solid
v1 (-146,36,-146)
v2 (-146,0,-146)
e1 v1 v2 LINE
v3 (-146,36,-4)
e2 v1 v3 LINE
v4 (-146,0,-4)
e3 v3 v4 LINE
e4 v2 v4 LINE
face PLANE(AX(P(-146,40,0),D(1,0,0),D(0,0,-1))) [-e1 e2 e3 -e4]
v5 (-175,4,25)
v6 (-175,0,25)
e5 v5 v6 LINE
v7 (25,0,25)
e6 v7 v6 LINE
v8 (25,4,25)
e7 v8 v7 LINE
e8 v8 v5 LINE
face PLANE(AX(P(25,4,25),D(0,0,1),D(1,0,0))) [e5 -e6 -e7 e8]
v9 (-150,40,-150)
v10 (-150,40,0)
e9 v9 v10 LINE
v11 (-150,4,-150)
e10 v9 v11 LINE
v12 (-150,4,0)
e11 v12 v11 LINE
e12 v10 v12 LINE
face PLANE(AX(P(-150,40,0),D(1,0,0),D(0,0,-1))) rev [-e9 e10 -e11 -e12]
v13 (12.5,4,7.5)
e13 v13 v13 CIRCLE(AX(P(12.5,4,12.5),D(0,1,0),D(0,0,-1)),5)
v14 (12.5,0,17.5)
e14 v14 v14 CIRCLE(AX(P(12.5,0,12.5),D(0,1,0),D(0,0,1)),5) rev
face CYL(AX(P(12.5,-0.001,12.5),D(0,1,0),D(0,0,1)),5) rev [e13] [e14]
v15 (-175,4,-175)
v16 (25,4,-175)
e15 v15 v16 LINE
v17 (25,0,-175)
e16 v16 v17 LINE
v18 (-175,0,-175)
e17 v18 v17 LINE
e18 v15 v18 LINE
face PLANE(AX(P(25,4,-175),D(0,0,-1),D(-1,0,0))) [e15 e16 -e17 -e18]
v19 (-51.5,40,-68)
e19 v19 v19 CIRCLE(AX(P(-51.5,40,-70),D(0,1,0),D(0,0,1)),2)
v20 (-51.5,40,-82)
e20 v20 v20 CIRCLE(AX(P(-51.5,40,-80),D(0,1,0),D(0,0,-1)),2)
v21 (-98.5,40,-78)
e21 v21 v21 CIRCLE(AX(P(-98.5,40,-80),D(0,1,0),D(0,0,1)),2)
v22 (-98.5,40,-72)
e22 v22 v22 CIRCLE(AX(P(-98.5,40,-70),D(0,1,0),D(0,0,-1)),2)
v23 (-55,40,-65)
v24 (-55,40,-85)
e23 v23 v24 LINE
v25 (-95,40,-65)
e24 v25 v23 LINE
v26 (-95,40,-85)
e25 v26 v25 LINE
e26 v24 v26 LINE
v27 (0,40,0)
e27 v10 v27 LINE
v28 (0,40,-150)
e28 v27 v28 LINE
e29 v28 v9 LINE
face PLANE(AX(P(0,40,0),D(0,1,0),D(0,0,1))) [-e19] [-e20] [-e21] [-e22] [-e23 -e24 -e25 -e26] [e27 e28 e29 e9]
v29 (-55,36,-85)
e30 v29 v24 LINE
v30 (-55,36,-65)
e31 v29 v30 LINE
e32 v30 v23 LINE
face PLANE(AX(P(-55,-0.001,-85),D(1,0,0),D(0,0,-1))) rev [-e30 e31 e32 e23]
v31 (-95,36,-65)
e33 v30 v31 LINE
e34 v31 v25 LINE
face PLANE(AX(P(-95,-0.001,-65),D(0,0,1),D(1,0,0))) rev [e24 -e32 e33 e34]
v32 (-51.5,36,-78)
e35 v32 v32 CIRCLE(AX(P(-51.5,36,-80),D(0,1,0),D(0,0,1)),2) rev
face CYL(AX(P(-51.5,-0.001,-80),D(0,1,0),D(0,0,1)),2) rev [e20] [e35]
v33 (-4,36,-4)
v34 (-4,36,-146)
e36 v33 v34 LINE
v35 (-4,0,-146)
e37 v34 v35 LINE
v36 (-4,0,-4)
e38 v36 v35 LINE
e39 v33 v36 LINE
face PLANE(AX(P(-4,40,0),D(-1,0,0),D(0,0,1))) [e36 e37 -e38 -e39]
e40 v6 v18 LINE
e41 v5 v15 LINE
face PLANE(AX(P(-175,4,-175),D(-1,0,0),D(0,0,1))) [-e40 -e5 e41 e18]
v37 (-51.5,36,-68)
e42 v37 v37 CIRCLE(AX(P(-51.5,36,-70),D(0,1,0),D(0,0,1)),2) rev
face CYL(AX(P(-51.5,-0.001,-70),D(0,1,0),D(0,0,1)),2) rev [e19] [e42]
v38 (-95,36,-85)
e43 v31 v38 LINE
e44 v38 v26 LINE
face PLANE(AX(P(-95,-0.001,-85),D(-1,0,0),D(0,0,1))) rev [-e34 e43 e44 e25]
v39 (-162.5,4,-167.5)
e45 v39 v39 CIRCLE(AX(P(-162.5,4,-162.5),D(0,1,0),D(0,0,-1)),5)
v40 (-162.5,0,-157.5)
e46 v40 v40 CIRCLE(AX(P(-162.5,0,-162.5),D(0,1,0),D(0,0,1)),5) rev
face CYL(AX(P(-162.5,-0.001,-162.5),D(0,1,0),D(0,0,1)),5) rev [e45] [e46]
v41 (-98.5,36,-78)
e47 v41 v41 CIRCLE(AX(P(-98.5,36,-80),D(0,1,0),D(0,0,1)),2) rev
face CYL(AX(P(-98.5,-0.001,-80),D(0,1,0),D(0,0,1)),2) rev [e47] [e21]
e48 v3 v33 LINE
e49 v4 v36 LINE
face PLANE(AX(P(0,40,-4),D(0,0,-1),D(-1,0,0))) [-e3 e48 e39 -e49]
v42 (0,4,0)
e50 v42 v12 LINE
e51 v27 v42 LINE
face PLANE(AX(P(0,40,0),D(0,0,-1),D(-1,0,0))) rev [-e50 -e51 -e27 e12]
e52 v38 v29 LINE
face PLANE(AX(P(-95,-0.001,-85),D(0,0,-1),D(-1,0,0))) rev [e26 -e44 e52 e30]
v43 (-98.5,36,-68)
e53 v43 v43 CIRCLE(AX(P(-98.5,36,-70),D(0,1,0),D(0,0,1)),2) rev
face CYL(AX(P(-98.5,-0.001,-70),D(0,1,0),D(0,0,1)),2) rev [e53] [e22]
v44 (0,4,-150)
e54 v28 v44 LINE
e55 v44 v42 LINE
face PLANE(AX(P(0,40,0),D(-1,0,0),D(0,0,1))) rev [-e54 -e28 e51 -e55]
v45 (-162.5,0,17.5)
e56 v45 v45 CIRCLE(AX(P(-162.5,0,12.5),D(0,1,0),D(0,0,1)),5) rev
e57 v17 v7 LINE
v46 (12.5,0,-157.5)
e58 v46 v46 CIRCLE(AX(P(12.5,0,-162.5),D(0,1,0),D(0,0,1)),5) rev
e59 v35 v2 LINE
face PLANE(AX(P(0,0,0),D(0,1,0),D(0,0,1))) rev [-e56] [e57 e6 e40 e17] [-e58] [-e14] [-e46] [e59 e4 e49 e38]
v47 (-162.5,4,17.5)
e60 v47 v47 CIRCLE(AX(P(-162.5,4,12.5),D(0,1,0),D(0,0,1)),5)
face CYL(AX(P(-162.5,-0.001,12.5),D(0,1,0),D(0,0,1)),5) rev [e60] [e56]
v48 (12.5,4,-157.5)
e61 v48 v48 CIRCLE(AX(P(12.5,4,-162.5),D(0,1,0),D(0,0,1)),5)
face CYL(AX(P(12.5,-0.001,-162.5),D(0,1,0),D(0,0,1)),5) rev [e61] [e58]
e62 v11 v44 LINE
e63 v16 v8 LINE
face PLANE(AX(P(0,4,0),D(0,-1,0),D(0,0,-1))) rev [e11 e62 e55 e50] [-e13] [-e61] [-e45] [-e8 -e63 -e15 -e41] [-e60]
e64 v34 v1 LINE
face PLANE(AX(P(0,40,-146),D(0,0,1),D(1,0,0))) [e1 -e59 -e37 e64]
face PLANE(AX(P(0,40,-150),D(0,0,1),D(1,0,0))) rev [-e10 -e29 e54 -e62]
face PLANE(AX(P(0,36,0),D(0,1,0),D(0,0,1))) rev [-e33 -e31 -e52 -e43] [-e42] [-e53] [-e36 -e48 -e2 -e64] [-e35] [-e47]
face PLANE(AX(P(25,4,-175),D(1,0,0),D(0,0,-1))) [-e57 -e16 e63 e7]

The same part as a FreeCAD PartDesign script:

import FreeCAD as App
import Part
import Sketcher
Q = App.Units.Quantity


def faces_at(feature, points):
    """Names of the faces that lie closest to the given points."""
    faces = feature.Shape.Faces
    near = lambda p: min(range(len(faces)), key=lambda i: faces[i].distToShape(Part.Vertex(*p))[0])
    return sorted({f"Face{near(p) + 1}" for p in points})


def add_polygon(sketch, points):
    """Adds a closed chain of lines whose ends are joined by coincident constraints."""
    first, n = sketch.GeometryCount, len(points)
    for a, b in zip(points, points[1:] + points[:1]):
        sketch.addGeometry(Part.LineSegment(App.Vector(*a, 0), App.Vector(*b, 0)), False)
    for i in range(n):
        sketch.addConstraint(Sketcher.Constraint("Coincident", first + i, 2, first + (i + 1) % n, 1))

doc = App.newDocument("Part")
body = doc.addObject("PartDesign::Body", "Body")

# Sketch on XZ plane
sketch1 = body.newObject("Sketcher::SketchObject", "Sketch")
sketch1.AttachmentSupport = (doc.getObject("XZ_Plane"), [""])
sketch1.MapMode = "FlatFace"
add_polygon(sketch1, [(-150, -150), (-150, 0), (0, 0), (0, -150)])  # lines 0-3
sketch1.addConstraint(Sketcher.Constraint("Vertical", 0))
sketch1.addConstraint(Sketcher.Constraint("Horizontal", 1))
sketch1.addConstraint(Sketcher.Constraint("Vertical", 2))
sketch1.addConstraint(Sketcher.Constraint("Horizontal", 3))
sketch1.addConstraint(Sketcher.Constraint("Coincident", 1, 2, -1, 1))
sketch1.addConstraint(Sketcher.Constraint("Equal", 3, 0))
sketch1.addConstraint(Sketcher.Constraint("DistanceX", 1, 1, 1, 2, Q("150 mm")))
pad1 = body.newObject("PartDesign::Pad", "Pad")
pad1.Profile = sketch1
pad1.Length = 40
pad1.Reversed = True
doc.recompute()

thickness = body.newObject("PartDesign::Thickness", "Thickness")
thickness.Base = (pad1, faces_at(pad1, [(-75, 0, -75)]))
thickness.Value = 4
thickness.Reversed = True
thickness.Join = "Intersection"

# Sketch on XZ plane
sketch2 = body.newObject("Sketcher::SketchObject", "Sketch001")
sketch2.AttachmentSupport = (doc.getObject("XZ_Plane"), [""])
sketch2.MapMode = "FlatFace"
add_polygon(sketch2, [(-175, 25), (-175, -175), (25, -175), (25, 25)])  # lines 0-3
add_polygon(sketch2, [(0, -150), (-150, -150), (-150, 0), (0, 0)])  # lines 4-7
sketch2.addConstraint(Sketcher.Constraint("Vertical", 0))
sketch2.addConstraint(Sketcher.Constraint("Horizontal", 1))
sketch2.addConstraint(Sketcher.Constraint("Vertical", 2))
sketch2.addConstraint(Sketcher.Constraint("Horizontal", 3))
sketch2.addConstraint(Sketcher.Constraint("Horizontal", 4))
sketch2.addConstraint(Sketcher.Constraint("Vertical", 5))
sketch2.addConstraint(Sketcher.Constraint("Horizontal", 6))
sketch2.addConstraint(Sketcher.Constraint("Vertical", 7))
sketch2.addConstraint(Sketcher.Constraint("Coincident", 6, 2, -1, 1))
sketch2.addConstraint(Sketcher.Constraint("Equal", 3, 0))
sketch2.addConstraint(Sketcher.Constraint("Equal", 6, 5))
sketch2.addConstraint(Sketcher.Constraint("DistanceX", 1, 1, 1, 2, Q("200 mm")))
sketch2.addConstraint(Sketcher.Constraint("DistanceX", 4, 2, 4, 1, Q("150 mm")))
sketch2.addConstraint(Sketcher.Constraint("DistanceX", 0, 2, -1, 1, Q("175 mm")))
sketch2.addConstraint(Sketcher.Constraint("DistanceY", 0, 2, -1, 1, Q("175 mm")))
pad2 = body.newObject("PartDesign::Pad", "Pad001")
pad2.Profile = sketch2
pad2.Length = 4
pad2.Reversed = True

# Sketch on XZ plane
sketch3 = body.newObject("Sketcher::SketchObject", "Sketch002")
sketch3.AttachmentSupport = (doc.getObject("XZ_Plane"), [""])
sketch3.MapMode = "FlatFace"
sketch3.AttachmentOffset = App.Placement(App.Vector(0, 0, -4), App.Rotation())
sketch3.addGeometry(Part.Circle(App.Vector(12, -162, 0), App.Vector(0, 0, 1), 5), False)
sketch3.addConstraint(Sketcher.Constraint("Diameter", 0, Q("10 mm")))
sketch3.addConstraint(Sketcher.Constraint("DistanceX", -1, 1, 0, 3, Q("12.5 mm")))
sketch3.addConstraint(Sketcher.Constraint("DistanceY", 0, 3, -1, 1, Q("162.5 mm")))
pocket1 = body.newObject("PartDesign::Pocket", "Pocket")
pocket1.Profile = sketch3
pocket1.Type = "UpToFirst"
pocket1.Reversed = True

# Sketch on XZ plane
sketch4 = body.newObject("Sketcher::SketchObject", "Sketch003")
sketch4.AttachmentSupport = (doc.getObject("XZ_Plane"), [""])
sketch4.MapMode = "FlatFace"
sketch4.AttachmentOffset = App.Placement(App.Vector(0, 0, -4), App.Rotation())
sketch4.addGeometry(Part.Circle(App.Vector(12, 12, 0), App.Vector(0, 0, 1), 5), False)
sketch4.addConstraint(Sketcher.Constraint("Diameter", 0, Q("10 mm")))
sketch4.addConstraint(Sketcher.Constraint("DistanceX", -1, 1, 0, 3, Q("12.5 mm")))
sketch4.addConstraint(Sketcher.Constraint("DistanceY", -1, 1, 0, 3, Q("12.5 mm")))
pocket2 = body.newObject("PartDesign::Pocket", "Pocket001")
pocket2.Profile = sketch4
pocket2.Type = "UpToFirst"
pocket2.Reversed = True

# Sketch on XZ plane
sketch5 = body.newObject("Sketcher::SketchObject", "Sketch004")
sketch5.AttachmentSupport = (doc.getObject("XZ_Plane"), [""])
sketch5.MapMode = "FlatFace"
sketch5.AttachmentOffset = App.Placement(App.Vector(0, 0, -4), App.Rotation())
sketch5.addGeometry(Part.Circle(App.Vector(-162, 12, 0), App.Vector(0, 0, 1), 5), False)
sketch5.addConstraint(Sketcher.Constraint("Diameter", 0, Q("10 mm")))
sketch5.addConstraint(Sketcher.Constraint("DistanceX", 0, 3, -1, 1, Q("162.5 mm")))
sketch5.addConstraint(Sketcher.Constraint("DistanceY", -1, 1, 0, 3, Q("12.5 mm")))
pocket3 = body.newObject("PartDesign::Pocket", "Pocket002")
pocket3.Profile = sketch5
pocket3.Type = "UpToFirst"
pocket3.Reversed = True

# Sketch on XZ plane
sketch6 = body.newObject("Sketcher::SketchObject", "Sketch005")
sketch6.AttachmentSupport = (doc.getObject("XZ_Plane"), [""])
sketch6.MapMode = "FlatFace"
sketch6.AttachmentOffset = App.Placement(App.Vector(0, 0, -4), App.Rotation())
sketch6.addGeometry(Part.Circle(App.Vector(-162, -162, 0), App.Vector(0, 0, 1), 5), False)
sketch6.addConstraint(Sketcher.Constraint("Diameter", 0, Q("10 mm")))
sketch6.addConstraint(Sketcher.Constraint("DistanceX", 0, 3, -1, 1, Q("162.5 mm")))
sketch6.addConstraint(Sketcher.Constraint("DistanceY", 0, 3, -1, 1, Q("162.5 mm")))
pocket4 = body.newObject("PartDesign::Pocket", "Pocket003")
pocket4.Profile = sketch6
pocket4.Type = "UpToFirst"
pocket4.Reversed = True

# Sketch on XZ plane
sketch7 = body.newObject("Sketcher::SketchObject", "Sketch006")
sketch7.AttachmentSupport = (doc.getObject("XZ_Plane"), [""])
sketch7.MapMode = "FlatFace"
sketch7.AttachmentOffset = App.Placement(App.Vector(0, 0, -40), App.Rotation())
sketch7.addGeometry(Part.Circle(App.Vector(-51.5, -70, 0), App.Vector(0, 0, 1), 2), False)
sketch7.addConstraint(Sketcher.Constraint("Diameter", 0, Q("4 mm")))
sketch7.addConstraint(Sketcher.Constraint("DistanceY", 0, 3, -1, 1, Q("70 mm")))
sketch7.addConstraint(Sketcher.Constraint("DistanceX", 0, 3, -1, 1, Q("51.5 mm")))
pocket5 = body.newObject("PartDesign::Pocket", "Pocket004")
pocket5.Profile = sketch7
pocket5.Type = "UpToFirst"
pocket5.Reversed = True

# Sketch on XZ plane
sketch8 = body.newObject("Sketcher::SketchObject", "Sketch007")
sketch8.AttachmentSupport = (doc.getObject("XZ_Plane"), [""])
sketch8.MapMode = "FlatFace"
sketch8.AttachmentOffset = App.Placement(App.Vector(0, 0, -40), App.Rotation())
sketch8.addGeometry(Part.Circle(App.Vector(-51.5, -80, 0), App.Vector(0, 0, 1), 2), False)
sketch8.addConstraint(Sketcher.Constraint("Diameter", 0, Q("4 mm")))
sketch8.addConstraint(Sketcher.Constraint("DistanceY", 0, 3, -1, 1, Q("80 mm")))
sketch8.addConstraint(Sketcher.Constraint("DistanceX", 0, 3, -1, 1, Q("51.5 mm")))
pocket6 = body.newObject("PartDesign::Pocket", "Pocket005")
pocket6.Profile = sketch8
pocket6.Type = "UpToFirst"
pocket6.Reversed = True

# Sketch on XZ plane
sketch9 = body.newObject("Sketcher::SketchObject", "Sketch008")
sketch9.AttachmentSupport = (doc.getObject("XZ_Plane"), [""])
sketch9.MapMode = "FlatFace"
sketch9.AttachmentOffset = App.Placement(App.Vector(0, 0, -40), App.Rotation())
sketch9.addGeometry(Part.Circle(App.Vector(-98.5, -80, 0), App.Vector(0, 0, 1), 2), False)
sketch9.addConstraint(Sketcher.Constraint("Diameter", 0, Q("4 mm")))
sketch9.addConstraint(Sketcher.Constraint("DistanceY", 0, 3, -1, 1, Q("80 mm")))
sketch9.addConstraint(Sketcher.Constraint("DistanceX", 0, 3, -1, 1, Q("98.5 mm")))
pocket7 = body.newObject("PartDesign::Pocket", "Pocket006")
pocket7.Profile = sketch9
pocket7.Type = "UpToFirst"
pocket7.Reversed = True

# Sketch on XZ plane
sketch10 = body.newObject("Sketcher::SketchObject", "Sketch009")
sketch10.AttachmentSupport = (doc.getObject("XZ_Plane"), [""])
sketch10.MapMode = "FlatFace"
sketch10.AttachmentOffset = App.Placement(App.Vector(0, 0, -40), App.Rotation())
sketch10.addGeometry(Part.Circle(App.Vector(-98.5, -70, 0), App.Vector(0, 0, 1), 2), False)
sketch10.addConstraint(Sketcher.Constraint("Diameter", 0, Q("4 mm")))
sketch10.addConstraint(Sketcher.Constraint("DistanceY", 0, 3, -1, 1, Q("70 mm")))
sketch10.addConstraint(Sketcher.Constraint("DistanceX", 0, 3, -1, 1, Q("98.5 mm")))
pocket8 = body.newObject("PartDesign::Pocket", "Pocket007")
pocket8.Profile = sketch10
pocket8.Type = "UpToFirst"
pocket8.Reversed = True

# Sketch on XZ plane
sketch11 = body.newObject("Sketcher::SketchObject", "Sketch010")
sketch11.AttachmentSupport = (doc.getObject("XZ_Plane"), [""])
sketch11.MapMode = "FlatFace"
sketch11.AttachmentOffset = App.Placement(App.Vector(0, 0, -40), App.Rotation())
add_polygon(sketch11, [(-95, -85), (-95, -65), (-55, -65), (-55, -85)])  # lines 0-3
sketch11.addConstraint(Sketcher.Constraint("Vertical", 0))
sketch11.addConstraint(Sketcher.Constraint("Horizontal", 1))
sketch11.addConstraint(Sketcher.Constraint("Vertical", 2))
sketch11.addConstraint(Sketcher.Constraint("Horizontal", 3))
sketch11.addConstraint(Sketcher.Constraint("DistanceX", 1, 1, 1, 2, Q("40 mm")))
sketch11.addConstraint(Sketcher.Constraint("DistanceY", 0, 1, 0, 2, Q("20 mm")))
sketch11.addConstraint(Sketcher.Constraint("DistanceX", 0, 2, -1, 1, Q("95 mm")))
sketch11.addConstraint(Sketcher.Constraint("DistanceY", 0, 2, -1, 1, Q("65 mm")))
pocket9 = body.newObject("PartDesign::Pocket", "Pocket008")
pocket9.Profile = sketch11
pocket9.Type = "UpToFirst"
pocket9.Reversed = True

doc.recompute()
